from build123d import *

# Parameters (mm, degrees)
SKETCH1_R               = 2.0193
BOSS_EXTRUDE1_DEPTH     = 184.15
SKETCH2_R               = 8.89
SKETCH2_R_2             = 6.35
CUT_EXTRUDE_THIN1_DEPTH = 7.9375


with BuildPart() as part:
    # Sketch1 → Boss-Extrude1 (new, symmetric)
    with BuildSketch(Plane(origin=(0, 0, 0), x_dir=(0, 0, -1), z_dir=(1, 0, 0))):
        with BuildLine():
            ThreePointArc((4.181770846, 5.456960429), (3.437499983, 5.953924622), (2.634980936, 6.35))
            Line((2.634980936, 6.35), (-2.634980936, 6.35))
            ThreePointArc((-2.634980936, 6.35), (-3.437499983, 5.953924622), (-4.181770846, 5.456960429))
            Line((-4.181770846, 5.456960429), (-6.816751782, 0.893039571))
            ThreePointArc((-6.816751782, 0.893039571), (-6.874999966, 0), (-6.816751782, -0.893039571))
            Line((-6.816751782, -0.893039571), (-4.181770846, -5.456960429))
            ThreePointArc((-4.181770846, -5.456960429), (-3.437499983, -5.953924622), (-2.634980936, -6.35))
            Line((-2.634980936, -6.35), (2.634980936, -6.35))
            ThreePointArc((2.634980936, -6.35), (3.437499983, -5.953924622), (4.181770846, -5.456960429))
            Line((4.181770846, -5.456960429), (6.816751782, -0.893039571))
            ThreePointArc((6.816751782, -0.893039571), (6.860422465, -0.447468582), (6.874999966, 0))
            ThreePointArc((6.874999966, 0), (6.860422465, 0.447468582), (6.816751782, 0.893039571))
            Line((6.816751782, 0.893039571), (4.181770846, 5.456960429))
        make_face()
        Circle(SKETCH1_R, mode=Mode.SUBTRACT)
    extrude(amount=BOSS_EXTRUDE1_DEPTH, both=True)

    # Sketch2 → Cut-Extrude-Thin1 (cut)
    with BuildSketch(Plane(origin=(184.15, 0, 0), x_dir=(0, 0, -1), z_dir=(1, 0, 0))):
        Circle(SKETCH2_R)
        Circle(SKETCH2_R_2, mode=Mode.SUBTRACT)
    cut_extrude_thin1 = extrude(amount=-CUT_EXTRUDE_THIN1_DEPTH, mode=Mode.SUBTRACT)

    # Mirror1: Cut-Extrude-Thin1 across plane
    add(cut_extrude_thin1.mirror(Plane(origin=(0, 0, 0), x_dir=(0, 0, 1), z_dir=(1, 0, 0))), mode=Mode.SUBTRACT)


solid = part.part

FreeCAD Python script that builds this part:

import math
import FreeCAD as App
import Part
import Sketcher
from FreeCAD import Vector
Q = App.Units.Quantity

doc = App.newDocument("Part")
body = doc.addObject("PartDesign::Body", "Body")

# Sketch on YZ plane
sketch1 = body.newObject("Sketcher::SketchObject", "Sketch")
sketch1.AttachmentSupport = (doc.getObject("YZ_Plane"), [""])
sketch1.MapMode = "FlatFace"
sketch1.addGeometry([
    Part.ArcOfCircle(Part.Circle(Vector(0, 0, 0), Vector(0, 0, 1), 6.9), math.radians(-37.46), math.radians(-22.54)),  # 0
    Part.LineSegment(Vector(6.3, -2.6, 0), Vector(6.3, 2.6, 0)),  # 1
    Part.ArcOfCircle(Part.Circle(Vector(0, 0, 0), Vector(0, 0, 1), 6.9), math.radians(22.54), math.radians(37.46)),  # 2
    Part.LineSegment(Vector(5.5, 4.2, 0), Vector(0.9, 6.8, 0)),  # 3
    Part.ArcOfCircle(Part.Circle(Vector(0, 0, 0), Vector(0, 0, 1), 6.9), math.radians(82.54), math.radians(97.46)),  # 4
    Part.LineSegment(Vector(-0.9, 6.8, 0), Vector(-5.5, 4.2, 0)),  # 5
    Part.ArcOfCircle(Part.Circle(Vector(0, 0, 0), Vector(0, 0, 1), 6.9), math.radians(142.54), math.radians(157.46)),  # 6
    Part.LineSegment(Vector(-6.3, 2.6, 0), Vector(-6.3, -2.6, 0)),  # 7
    Part.ArcOfCircle(Part.Circle(Vector(0, 0, 0), Vector(0, 0, 1), 6.9), math.radians(-157.46), math.radians(-142.54)),  # 8
    Part.LineSegment(Vector(-5.5, -4.2, 0), Vector(-0.9, -6.8, 0)),  # 9
    Part.ArcOfCircle(Part.Circle(Vector(0, 0, 0), Vector(0, 0, 1), 6.9), math.radians(-97.46), math.radians(-90)),  # 10
    Part.ArcOfCircle(Part.Circle(Vector(0, 0, 0), Vector(0, 0, 1), 6.9), math.radians(-90), math.radians(-82.54)),  # 11
    Part.LineSegment(Vector(0.9, -6.8, 0), Vector(5.5, -4.2, 0)),  # 12
    Part.Circle(Vector(0, 0, 0), Vector(0, 0, 1), 2),  # 13
], False)
sketch1.addConstraint([
    Sketcher.Constraint("Coincident", 0, 2, 1, 1),
    Sketcher.Constraint("Coincident", 1, 2, 2, 1),
    Sketcher.Constraint("Coincident", 2, 2, 3, 1),
    Sketcher.Constraint("Coincident", 3, 2, 4, 1),
    Sketcher.Constraint("Coincident", 4, 2, 5, 1),
    Sketcher.Constraint("Coincident", 5, 2, 6, 1),
    Sketcher.Constraint("Coincident", 6, 2, 7, 1),
    Sketcher.Constraint("Coincident", 7, 2, 8, 1),
    Sketcher.Constraint("Coincident", 8, 2, 9, 1),
    Sketcher.Constraint("Coincident", 9, 2, 10, 1),
    Sketcher.Constraint("Tangent", 10, 2, 11, 1),
    Sketcher.Constraint("Coincident", 11, 2, 12, 1),
    Sketcher.Constraint("Coincident", 12, 2, 0, 1),
    Sketcher.Constraint("Vertical", 1),
    Sketcher.Constraint("Vertical", 7),
    Sketcher.Constraint("Coincident", 0, 3, -1, 1),
    Sketcher.Constraint("Coincident", 2, 3, -1, 1),
    Sketcher.Constraint("Coincident", 4, 3, -1, 1),
    Sketcher.Constraint("Coincident", 6, 3, -1, 1),
    Sketcher.Constraint("Coincident", 8, 3, -1, 1),
    Sketcher.Constraint("Coincident", 10, 3, -1, 1),
    Sketcher.Constraint("Coincident", 13, 3, -1, 1),
    Sketcher.Constraint("Equal", 0, 2),
    Sketcher.Constraint("Equal", 2, 4),
    Sketcher.Constraint("Equal", 4, 6),
    Sketcher.Constraint("Equal", 6, 8),
    Sketcher.Constraint("Equal", 8, 10),
    Sketcher.Constraint("Equal", 10, 11),
    Sketcher.Constraint("PointOnObject", 10, 2, -2),
    Sketcher.Constraint("Parallel", 3, 9),
    Sketcher.Constraint("Parallel", 5, 12),
    Sketcher.Constraint("Horizontal", 3, 2, 4, 2),
    Sketcher.Constraint("Horizontal", 2, 2, 5, 2),
    Sketcher.Constraint("Horizontal", 1, 2, 6, 2),
    Sketcher.Constraint("Horizontal", 9, 2, 11, 2),
    Sketcher.Constraint("Vertical", 5, 2, 8, 2),
    Sketcher.Constraint("Diameter", 13, Q("0.159 in")),
    Sketcher.Constraint("Angle", 3, Q("150 deg")),
    Sketcher.Constraint("DistanceX", -1, 1, 0, 2, Q("0.25 in")),
    Sketcher.Constraint("Radius", 0, Q("6.875 mm")),
    Sketcher.Constraint("Distance", 3, Q("5.269962 mm")),
])
pad1 = body.newObject("PartDesign::Pad", "Pad")
pad1.Profile = sketch1
pad1.Length = Q("14.5 in")
pad1.Midplane = True

# Sketch on YZ plane
sketch2 = body.newObject("Sketcher::SketchObject", "Sketch001")
sketch2.AttachmentSupport = (doc.getObject("YZ_Plane"), [""])
sketch2.MapMode = "FlatFace"
sketch2.AttachmentOffset = App.Placement(Vector(0, 0, 7.25 * 25.4), App.Rotation())
sketch2.addGeometry([
    Part.Circle(Vector(0, 0, 0), Vector(0, 0, 1), 9),
    Part.Circle(Vector(0, 0, 0), Vector(0, 0, 1), 6),
], False)
sketch2.addConstraint([
    Sketcher.Constraint("Coincident", 0, 3, -1, 1),
    Sketcher.Constraint("Coincident", 1, 3, -1, 1),
    Sketcher.Constraint("Diameter", 0, Q("0.7 in")),
    Sketcher.Constraint("Diameter", 1, Q("0.5 in")),
])
pocket1 = body.newObject("PartDesign::Pocket", "Pocket")
pocket1.Profile = sketch2
pocket1.Length = Q("0.3125 in")
doc.recompute()

mirrored = body.newObject("PartDesign::Mirrored", "Mirrored")
mirrored.Originals = [pocket1]
mirrored.MirrorPlane = (doc.getObject("YZ_Plane"), [""])
body.Tip = mirrored

doc.recompute()
